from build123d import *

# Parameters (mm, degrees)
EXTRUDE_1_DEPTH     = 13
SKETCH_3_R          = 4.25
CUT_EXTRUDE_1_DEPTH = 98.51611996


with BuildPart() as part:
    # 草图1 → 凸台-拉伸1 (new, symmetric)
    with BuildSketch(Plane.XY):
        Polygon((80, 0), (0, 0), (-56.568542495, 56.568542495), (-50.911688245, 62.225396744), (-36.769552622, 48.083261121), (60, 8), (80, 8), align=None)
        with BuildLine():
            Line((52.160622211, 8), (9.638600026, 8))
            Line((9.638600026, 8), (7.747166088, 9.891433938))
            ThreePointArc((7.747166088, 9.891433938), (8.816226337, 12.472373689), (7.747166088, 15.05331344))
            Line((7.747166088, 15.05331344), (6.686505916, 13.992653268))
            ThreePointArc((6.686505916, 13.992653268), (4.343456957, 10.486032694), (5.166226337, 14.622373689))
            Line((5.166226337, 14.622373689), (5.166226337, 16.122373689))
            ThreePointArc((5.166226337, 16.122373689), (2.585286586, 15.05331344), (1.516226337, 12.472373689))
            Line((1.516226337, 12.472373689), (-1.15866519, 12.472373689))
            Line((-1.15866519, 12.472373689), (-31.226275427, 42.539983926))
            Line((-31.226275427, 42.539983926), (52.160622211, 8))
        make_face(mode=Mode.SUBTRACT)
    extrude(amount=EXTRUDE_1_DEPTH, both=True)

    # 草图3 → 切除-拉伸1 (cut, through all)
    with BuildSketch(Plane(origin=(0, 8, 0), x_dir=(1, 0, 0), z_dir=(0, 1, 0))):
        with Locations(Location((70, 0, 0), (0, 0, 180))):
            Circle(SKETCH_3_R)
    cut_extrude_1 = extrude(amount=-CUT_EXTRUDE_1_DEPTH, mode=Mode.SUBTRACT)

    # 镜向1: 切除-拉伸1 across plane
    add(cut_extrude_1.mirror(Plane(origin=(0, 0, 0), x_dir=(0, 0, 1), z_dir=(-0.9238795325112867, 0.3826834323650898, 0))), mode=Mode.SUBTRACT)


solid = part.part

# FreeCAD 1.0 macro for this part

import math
import FreeCAD as App
import Part
import Sketcher
Q = App.Units.Quantity


def add_polygon(sketch, points):
    """Adds a closed chain of lines whose ends are joined by coincident constraints."""
    first, n = sketch.GeometryCount, len(points)
    for a, b in zip(points, points[1:] + points[:1]):
        sketch.addGeometry(Part.LineSegment(App.Vector(*a, 0), App.Vector(*b, 0)), False)
    for i in range(n):
        sketch.addConstraint(Sketcher.Constraint("Coincident", first + i, 2, first + (i + 1) % n, 1))

doc = App.newDocument("Part")
body = doc.addObject("PartDesign::Body", "Body")

sketch1 = body.newObject("Sketcher::SketchObject", "Sketch")
sketch1.AttachmentSupport = (doc.getObject("XY_Plane"), [""])
sketch1.MapMode = "FlatFace"
add_polygon(sketch1, [(0, 0), (80, 0), (80, 8), (60, 8), (-36.8, 48.1), (-50.9, 62.2), (-56.6, 56.6)])
sketch1.addGeometry(Part.LineSegment(App.Vector(52.2, 8, 0), App.Vector(9.6, 8, 0)), False)
sketch1.addGeometry(Part.LineSegment(App.Vector(9.6, 8, 0), App.Vector(7.7, 9.9, 0)), False)
sketch1.addGeometry(Part.ArcOfCircle(Part.Circle(App.Vector(5.2, 12.5, 0), App.Vector(0, 0, 1), 3.6), math.radians(-45), math.radians(45)), False)
sketch1.addGeometry(Part.LineSegment(App.Vector(7.7, 15.1, 0), App.Vector(6.7, 14, 0)), False)
sketch1.addGeometry(Part.ArcOfCircle(Part.Circle(App.Vector(5.2, 12.5, 0), App.Vector(0, 0, 1), 2.1), math.radians(90), math.radians(405)), False)
sketch1.addGeometry(Part.LineSegment(App.Vector(5.2, 14.6, 0), App.Vector(5.2, 16.1, 0)), False)
sketch1.addGeometry(Part.ArcOfCircle(Part.Circle(App.Vector(5.2, 12.5, 0), App.Vector(0, 0, 1), 3.7), math.radians(90), math.radians(180)), False)
sketch1.addGeometry(Part.LineSegment(App.Vector(1.5, 12.5, 0), App.Vector(-1.2, 12.5, 0)), False)
sketch1.addGeometry(Part.LineSegment(App.Vector(-1.2, 12.5, 0), App.Vector(-31.2, 42.5, 0)), False)
sketch1.addGeometry(Part.LineSegment(App.Vector(-31.2, 42.5, 0), App.Vector(52.2, 8, 0)), False)
sketch1.addConstraint([
    Sketcher.Constraint("Coincident", 7, 2, 8, 1),
    Sketcher.Constraint("Coincident", 8, 2, 9, 1),
    Sketcher.Constraint("Coincident", 9, 2, 10, 1),
    Sketcher.Constraint("Coincident", 10, 2, 11, 2),
    Sketcher.Constraint("Coincident", 11, 1, 12, 1),
    Sketcher.Constraint("Coincident", 12, 2, 13, 1),
    Sketcher.Constraint("Coincident", 13, 2, 14, 1),
    Sketcher.Constraint("Coincident", 14, 2, 15, 1),
    Sketcher.Constraint("Coincident", 15, 2, 16, 1),
    Sketcher.Constraint("Coincident", 16, 2, 7, 1),
    Sketcher.Constraint("Horizontal", 0),
    Sketcher.Constraint("Vertical", 1),
    Sketcher.Constraint("Horizontal", 2),
    Sketcher.Constraint("Horizontal", 7),
    Sketcher.Constraint("Vertical", 12),
    Sketcher.Constraint("Horizontal", 14),
    Sketcher.Constraint("Coincident", 6, 2, -1, 1),
    Sketcher.Constraint("Coincident", 11, 3, 9, 3),
    Sketcher.Constraint("Coincident", 13, 3, 9, 3),
    Sketcher.Constraint("Equal", 9, 13),
    Sketcher.Constraint("Perpendicular", 4, 5),
    Sketcher.Constraint("Perpendicular", 5, 6),
    Sketcher.Constraint("Parallel", 6, 8),
    Sketcher.Constraint("Perpendicular", 8, 10),
    Sketcher.Constraint("Perpendicular", 10, 15),
    Sketcher.Constraint("Parallel", 3, 16),
    Sketcher.Constraint("Horizontal", 2, 2, 7, 2),
    Sketcher.Constraint("Horizontal", 11, 3, 13, 2),
    Sketcher.Constraint("Vertical", 8, 2, 9, 2),
    Sketcher.Constraint("Vertical", 13, 3, 11, 1),
    Sketcher.Constraint("DistanceX", 0, 1, 0, 2, Q("80 mm")),
    Sketcher.Constraint("DistanceX", 2, 2, 2, 1, Q("20 mm")),
    Sketcher.Constraint("DistanceY", 1, 1, 1, 2, Q("8 mm")),
    Sketcher.Constraint("Angle", 4, Q("135 deg")),
    Sketcher.Constraint("Radius", 9, Q("3.65 mm")),
    Sketcher.Constraint("Radius", 11, Q("2.15 mm")),
    Sketcher.Constraint("Distance", 4, Q("20 mm")),
    Sketcher.Constraint("Distance", 5, Q("8 mm")),
    Sketcher.Constraint("Distance", 6, Q("80 mm")),
    Sketcher.Constraint("DistanceX", 14, 2, 14, 1, Q("2.674892 mm")),
    Sketcher.Constraint("DistanceX", -1, 1, 7, 2, Q("9.6386 mm")),
    Sketcher.Constraint("DistanceX", 15, 2, 13, 2, Q("32.742502 mm")),
    Sketcher.Constraint("Distance", 8, Q("2.674892 mm")),
    Sketcher.Constraint("DistanceX", 7, 2, 7, 1, Q("42.522022 mm")),
])
pad1 = body.newObject("PartDesign::Pad", "Pad")
pad1.Profile = sketch1
pad1.Length = 26
pad1.Midplane = True

sketch2 = body.newObject("Sketcher::SketchObject", "Sketch001")
sketch2.AttachmentSupport = (doc.getObject("XZ_Plane"), [""])
sketch2.MapMode = "FlatFace"
sketch2.AttachmentOffset = App.Placement(App.Vector(0, 0, -8), App.Rotation())
sketch2.addGeometry(Part.Circle(App.Vector(70, 0, 0), App.Vector(0, 0, 1), 4.2), False)
sketch2.addConstraint([
    Sketcher.Constraint("PointOnObject", 0, 3, -1),
    Sketcher.Constraint("Diameter", 0, Q("8.5 mm")),
    Sketcher.Constraint("DistanceX", -1, 1, 0, 3, Q("70 mm")),
])
pocket1 = body.newObject("PartDesign::Pocket", "Pocket")
pocket1.Profile = sketch2
pocket1.Type = "ThroughAll"
pocket1.Reversed = True
doc.recompute()

datumplane = body.newObject("PartDesign::Plane", "DatumPlane")
datumplane.Placement = App.Placement(App.Vector(0, 0, 0), App.Rotation(App.Vector(0.382683432, 0.923879533, 0), App.Vector(0, 0, -1), App.Vector(-0.923879533, 0.382683432, 0), "ZXY"))
mirrored = body.newObject("PartDesign::Mirrored", "Mirrored")
mirrored.Originals = [pocket1]
mirrored.MirrorPlane = (datumplane, [""])
body.Tip = mirrored

doc.recompute()
